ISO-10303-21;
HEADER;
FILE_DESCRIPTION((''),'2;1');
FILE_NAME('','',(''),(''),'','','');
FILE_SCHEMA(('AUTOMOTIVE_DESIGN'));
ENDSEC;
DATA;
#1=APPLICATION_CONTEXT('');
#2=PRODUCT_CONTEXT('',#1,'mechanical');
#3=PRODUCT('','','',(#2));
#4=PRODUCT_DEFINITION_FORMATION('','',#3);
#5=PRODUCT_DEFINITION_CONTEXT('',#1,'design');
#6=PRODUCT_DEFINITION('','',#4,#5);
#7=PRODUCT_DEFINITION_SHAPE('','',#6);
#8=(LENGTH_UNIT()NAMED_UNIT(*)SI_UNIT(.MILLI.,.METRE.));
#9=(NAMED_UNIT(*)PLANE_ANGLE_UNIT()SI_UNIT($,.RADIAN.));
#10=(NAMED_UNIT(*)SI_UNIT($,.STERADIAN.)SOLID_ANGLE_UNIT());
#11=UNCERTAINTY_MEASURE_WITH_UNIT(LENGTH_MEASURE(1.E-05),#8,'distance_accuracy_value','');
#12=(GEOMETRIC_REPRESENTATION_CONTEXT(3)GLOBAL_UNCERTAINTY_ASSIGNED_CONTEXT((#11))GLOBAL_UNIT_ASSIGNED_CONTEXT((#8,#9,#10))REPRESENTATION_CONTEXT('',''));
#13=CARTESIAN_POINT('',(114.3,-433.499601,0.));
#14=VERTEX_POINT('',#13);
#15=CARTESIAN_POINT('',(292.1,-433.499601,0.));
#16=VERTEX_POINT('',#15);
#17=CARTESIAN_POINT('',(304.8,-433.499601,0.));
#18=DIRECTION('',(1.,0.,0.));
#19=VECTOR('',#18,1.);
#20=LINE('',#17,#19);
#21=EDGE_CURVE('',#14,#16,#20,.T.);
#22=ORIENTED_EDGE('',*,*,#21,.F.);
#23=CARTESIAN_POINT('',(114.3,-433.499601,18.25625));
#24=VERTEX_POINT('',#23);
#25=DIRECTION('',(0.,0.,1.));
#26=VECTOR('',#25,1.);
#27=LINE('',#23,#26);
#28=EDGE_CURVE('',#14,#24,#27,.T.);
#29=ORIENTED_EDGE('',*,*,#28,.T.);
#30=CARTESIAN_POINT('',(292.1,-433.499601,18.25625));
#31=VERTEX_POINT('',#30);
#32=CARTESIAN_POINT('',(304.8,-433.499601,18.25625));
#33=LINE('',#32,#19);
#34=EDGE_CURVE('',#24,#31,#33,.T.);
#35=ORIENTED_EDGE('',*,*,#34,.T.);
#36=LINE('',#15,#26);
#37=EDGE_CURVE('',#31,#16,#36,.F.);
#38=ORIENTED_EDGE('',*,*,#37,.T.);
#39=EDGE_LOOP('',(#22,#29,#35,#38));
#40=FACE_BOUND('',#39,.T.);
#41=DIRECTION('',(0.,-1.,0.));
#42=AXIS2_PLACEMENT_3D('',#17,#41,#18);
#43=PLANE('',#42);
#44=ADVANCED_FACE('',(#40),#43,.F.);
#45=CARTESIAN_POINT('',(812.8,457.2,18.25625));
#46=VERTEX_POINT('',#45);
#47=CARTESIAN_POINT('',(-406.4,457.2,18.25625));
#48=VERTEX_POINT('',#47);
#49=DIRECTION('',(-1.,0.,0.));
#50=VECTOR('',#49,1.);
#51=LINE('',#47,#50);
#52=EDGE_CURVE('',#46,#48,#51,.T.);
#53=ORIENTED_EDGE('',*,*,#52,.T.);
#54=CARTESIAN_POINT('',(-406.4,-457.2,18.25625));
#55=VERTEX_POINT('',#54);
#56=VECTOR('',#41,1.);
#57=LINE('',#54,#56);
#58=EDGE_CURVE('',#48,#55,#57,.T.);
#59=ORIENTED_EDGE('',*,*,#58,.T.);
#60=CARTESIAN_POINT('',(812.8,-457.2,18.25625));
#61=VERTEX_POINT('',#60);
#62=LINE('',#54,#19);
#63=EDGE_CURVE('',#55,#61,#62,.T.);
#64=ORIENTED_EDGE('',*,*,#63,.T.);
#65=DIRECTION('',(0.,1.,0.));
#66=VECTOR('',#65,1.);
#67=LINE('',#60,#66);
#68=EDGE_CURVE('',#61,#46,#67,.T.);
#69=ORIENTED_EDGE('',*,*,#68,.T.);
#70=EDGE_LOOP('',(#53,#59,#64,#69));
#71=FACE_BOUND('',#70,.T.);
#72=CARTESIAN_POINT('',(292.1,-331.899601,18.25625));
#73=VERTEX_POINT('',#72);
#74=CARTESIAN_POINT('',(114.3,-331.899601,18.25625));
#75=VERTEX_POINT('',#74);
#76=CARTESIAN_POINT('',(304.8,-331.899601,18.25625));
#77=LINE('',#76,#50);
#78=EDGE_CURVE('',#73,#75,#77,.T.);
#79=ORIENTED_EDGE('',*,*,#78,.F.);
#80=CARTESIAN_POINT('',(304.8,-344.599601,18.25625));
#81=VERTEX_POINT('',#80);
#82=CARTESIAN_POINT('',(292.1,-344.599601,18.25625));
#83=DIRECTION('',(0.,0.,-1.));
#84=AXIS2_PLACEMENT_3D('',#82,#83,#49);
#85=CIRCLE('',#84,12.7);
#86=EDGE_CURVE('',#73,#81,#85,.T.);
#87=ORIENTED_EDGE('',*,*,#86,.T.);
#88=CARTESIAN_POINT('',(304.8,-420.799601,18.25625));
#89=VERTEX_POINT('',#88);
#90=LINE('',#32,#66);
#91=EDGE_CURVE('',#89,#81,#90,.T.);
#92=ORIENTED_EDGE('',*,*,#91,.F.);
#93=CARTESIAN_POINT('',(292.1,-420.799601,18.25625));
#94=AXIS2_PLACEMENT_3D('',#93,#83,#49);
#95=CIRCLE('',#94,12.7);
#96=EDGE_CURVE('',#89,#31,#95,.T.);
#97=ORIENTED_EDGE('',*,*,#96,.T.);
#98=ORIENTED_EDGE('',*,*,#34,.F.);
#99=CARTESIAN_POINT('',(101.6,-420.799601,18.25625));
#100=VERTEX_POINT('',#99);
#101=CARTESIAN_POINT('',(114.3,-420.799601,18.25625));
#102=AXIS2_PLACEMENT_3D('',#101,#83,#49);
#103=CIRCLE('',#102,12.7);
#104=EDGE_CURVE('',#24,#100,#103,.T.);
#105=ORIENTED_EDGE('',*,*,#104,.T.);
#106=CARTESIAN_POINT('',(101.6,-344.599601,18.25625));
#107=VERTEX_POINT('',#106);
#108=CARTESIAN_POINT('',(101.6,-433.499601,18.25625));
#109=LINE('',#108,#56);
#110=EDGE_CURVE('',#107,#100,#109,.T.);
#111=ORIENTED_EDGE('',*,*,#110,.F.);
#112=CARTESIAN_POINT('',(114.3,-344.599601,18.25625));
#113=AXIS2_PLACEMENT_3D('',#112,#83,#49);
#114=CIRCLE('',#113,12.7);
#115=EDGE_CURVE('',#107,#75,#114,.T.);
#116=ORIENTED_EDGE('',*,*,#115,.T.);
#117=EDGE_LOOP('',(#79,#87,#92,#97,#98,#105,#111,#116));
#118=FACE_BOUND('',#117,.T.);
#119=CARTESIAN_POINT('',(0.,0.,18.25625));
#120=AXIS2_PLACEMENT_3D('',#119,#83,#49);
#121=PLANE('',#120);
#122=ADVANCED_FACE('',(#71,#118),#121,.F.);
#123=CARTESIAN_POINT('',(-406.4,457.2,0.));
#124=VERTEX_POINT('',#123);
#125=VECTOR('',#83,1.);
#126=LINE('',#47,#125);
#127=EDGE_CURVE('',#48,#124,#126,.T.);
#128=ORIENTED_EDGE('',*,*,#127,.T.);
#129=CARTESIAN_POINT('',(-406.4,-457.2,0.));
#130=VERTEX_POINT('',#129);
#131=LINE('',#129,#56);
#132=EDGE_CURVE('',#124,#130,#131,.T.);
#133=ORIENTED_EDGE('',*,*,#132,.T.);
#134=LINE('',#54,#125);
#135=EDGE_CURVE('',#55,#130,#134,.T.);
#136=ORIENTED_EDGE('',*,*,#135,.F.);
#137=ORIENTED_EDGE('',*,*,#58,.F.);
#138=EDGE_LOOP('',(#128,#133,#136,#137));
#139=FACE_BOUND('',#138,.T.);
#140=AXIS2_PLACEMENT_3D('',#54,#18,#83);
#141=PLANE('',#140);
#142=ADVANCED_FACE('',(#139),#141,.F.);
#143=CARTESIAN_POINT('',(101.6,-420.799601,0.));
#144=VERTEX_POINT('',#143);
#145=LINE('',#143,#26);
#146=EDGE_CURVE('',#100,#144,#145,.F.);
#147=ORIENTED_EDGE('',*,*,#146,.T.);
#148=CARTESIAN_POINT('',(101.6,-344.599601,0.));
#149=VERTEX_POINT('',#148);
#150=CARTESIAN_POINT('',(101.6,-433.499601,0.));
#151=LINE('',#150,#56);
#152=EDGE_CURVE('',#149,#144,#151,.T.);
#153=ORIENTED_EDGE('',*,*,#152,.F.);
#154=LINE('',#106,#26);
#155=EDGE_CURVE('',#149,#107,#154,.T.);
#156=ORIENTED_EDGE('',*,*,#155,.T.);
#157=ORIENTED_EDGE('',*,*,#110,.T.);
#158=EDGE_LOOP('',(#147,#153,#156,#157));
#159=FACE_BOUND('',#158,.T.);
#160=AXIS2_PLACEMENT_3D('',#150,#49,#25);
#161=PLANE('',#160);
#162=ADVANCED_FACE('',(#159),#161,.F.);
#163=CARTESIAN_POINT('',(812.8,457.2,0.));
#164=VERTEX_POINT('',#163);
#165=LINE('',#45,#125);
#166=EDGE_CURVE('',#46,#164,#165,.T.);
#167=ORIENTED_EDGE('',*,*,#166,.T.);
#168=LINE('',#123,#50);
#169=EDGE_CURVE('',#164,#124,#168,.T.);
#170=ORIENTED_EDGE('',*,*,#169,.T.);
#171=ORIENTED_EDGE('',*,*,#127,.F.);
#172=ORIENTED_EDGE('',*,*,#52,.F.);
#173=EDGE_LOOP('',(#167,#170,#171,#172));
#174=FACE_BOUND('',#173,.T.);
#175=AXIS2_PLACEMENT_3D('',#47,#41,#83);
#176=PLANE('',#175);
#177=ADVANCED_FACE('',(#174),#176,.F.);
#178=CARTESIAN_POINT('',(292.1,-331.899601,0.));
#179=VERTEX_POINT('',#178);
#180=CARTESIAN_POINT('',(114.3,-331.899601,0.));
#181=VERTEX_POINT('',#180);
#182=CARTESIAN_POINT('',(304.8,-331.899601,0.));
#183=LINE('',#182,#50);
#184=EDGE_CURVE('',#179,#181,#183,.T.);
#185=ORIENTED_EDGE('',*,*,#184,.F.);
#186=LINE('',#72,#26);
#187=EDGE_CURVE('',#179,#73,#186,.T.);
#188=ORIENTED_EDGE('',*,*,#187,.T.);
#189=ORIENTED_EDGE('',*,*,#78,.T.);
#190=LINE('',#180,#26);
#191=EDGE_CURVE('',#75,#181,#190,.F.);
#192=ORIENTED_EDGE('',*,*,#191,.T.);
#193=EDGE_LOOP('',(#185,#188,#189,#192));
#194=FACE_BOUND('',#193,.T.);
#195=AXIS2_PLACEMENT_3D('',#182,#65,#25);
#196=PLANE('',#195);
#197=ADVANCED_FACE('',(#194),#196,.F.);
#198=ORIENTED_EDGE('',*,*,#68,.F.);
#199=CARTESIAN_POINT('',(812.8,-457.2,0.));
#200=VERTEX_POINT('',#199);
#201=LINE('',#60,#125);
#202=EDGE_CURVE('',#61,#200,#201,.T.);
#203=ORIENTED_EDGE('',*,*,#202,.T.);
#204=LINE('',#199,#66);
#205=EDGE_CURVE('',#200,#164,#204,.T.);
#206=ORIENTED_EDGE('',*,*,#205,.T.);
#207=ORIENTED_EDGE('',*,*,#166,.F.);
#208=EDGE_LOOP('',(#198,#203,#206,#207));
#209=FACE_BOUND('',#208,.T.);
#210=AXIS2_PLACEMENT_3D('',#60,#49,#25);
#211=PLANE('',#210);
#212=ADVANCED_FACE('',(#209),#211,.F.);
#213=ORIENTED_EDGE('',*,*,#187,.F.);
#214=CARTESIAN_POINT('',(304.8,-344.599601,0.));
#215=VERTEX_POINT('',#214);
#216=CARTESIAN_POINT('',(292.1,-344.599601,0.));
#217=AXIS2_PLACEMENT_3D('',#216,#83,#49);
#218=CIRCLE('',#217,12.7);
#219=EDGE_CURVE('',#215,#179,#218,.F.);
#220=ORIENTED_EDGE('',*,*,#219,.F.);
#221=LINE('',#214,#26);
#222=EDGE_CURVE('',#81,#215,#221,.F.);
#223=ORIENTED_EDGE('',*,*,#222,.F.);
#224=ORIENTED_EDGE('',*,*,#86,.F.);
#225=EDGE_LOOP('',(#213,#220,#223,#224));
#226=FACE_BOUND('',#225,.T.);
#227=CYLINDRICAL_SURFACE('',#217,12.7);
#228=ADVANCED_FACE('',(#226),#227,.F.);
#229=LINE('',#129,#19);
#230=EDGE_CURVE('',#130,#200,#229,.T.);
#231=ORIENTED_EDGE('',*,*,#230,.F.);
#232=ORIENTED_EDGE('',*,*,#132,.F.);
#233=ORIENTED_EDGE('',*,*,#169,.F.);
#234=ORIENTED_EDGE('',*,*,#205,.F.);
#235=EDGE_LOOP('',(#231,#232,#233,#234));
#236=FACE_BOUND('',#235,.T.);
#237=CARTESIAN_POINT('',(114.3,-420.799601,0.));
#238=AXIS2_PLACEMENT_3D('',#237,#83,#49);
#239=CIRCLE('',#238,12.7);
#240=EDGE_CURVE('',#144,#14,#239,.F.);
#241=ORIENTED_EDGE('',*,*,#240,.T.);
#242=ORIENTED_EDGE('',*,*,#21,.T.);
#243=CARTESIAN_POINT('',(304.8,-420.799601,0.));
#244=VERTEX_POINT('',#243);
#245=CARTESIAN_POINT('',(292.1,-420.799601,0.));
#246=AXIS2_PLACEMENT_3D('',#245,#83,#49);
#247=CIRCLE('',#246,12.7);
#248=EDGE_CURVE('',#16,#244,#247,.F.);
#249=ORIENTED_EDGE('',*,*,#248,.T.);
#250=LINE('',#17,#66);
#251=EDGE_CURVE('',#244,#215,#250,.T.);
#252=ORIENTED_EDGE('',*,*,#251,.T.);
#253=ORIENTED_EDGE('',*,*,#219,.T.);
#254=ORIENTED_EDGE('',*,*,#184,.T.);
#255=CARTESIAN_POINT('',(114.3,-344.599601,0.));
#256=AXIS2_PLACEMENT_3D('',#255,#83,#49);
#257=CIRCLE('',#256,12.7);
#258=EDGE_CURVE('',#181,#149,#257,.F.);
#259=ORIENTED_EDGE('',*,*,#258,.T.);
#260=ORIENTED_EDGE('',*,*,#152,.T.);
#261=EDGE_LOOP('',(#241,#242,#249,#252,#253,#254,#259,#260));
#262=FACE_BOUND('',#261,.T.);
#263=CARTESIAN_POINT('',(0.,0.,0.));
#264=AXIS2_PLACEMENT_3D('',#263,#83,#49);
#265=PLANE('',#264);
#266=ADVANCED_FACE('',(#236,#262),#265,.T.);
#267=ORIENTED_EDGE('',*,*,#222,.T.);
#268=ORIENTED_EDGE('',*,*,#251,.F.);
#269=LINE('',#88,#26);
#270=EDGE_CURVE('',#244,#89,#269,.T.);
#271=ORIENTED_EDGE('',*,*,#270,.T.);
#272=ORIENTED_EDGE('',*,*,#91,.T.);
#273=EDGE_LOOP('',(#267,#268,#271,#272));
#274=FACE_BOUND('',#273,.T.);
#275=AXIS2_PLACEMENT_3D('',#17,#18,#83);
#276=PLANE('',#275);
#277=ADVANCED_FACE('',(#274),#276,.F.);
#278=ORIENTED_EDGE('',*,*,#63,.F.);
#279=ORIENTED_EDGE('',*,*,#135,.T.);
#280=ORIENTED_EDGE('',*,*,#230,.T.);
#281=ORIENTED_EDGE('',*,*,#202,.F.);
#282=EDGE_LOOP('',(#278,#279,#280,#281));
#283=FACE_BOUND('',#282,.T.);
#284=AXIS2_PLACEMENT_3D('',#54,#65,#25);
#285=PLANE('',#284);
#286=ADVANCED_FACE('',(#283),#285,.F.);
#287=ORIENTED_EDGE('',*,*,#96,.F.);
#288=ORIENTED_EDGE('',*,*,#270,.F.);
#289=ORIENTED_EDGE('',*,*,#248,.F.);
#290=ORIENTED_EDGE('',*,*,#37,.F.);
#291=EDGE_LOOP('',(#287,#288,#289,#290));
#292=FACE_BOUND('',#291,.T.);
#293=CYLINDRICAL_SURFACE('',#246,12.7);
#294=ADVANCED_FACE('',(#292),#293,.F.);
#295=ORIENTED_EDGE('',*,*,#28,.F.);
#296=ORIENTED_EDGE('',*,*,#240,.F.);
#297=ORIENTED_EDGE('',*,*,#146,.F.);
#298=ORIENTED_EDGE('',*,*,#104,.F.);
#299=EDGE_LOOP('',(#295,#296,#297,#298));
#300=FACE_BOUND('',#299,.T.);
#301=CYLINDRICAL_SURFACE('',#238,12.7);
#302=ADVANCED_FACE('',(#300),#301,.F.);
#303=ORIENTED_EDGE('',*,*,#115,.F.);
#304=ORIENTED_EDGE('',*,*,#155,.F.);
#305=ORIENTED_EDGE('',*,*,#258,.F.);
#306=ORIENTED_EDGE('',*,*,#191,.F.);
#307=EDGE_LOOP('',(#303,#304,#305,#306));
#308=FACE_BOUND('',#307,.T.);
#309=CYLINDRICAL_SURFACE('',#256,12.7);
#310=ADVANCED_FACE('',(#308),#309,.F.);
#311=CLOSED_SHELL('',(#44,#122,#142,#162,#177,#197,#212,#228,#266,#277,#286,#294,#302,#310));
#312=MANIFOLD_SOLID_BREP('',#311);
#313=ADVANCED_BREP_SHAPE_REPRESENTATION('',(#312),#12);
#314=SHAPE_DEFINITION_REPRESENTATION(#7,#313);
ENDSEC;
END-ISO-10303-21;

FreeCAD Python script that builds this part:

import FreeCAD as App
import Part
import Sketcher
from FreeCAD import Vector
Q = App.Units.Quantity


def edges_at(feature, points):
    """Names of the edges that pass closest to the given points."""
    edges = feature.Shape.Edges
    near = lambda p: min(range(len(edges)), key=lambda i: edges[i].distToShape(Part.Vertex(*p))[0])
    return sorted({f"Edge{near(p) + 1}" for p in points})


def add_polygon(sketch, points):
    """Adds a closed chain of lines whose ends are joined by coincident constraints."""
    first, n = sketch.GeometryCount, len(points)
    for a, b in zip(points, points[1:] + points[:1]):
        sketch.addGeometry(Part.LineSegment(App.Vector(*a, 0), App.Vector(*b, 0)), False)
    for i in range(n):
        sketch.addConstraint(Sketcher.Constraint("Coincident", first + i, 2, first + (i + 1) % n, 1))

doc = App.newDocument("Part")
body = doc.addObject("PartDesign::Body", "Body")

# Sketch on XY plane
sketch1 = body.newObject("Sketcher::SketchObject", "Sketch")
sketch1.AttachmentSupport = (doc.getObject("XY_Plane"), [""])
sketch1.MapMode = "FlatFace"
add_polygon(sketch1, [(-406, 457), (-406, -457), (813, -457), (813, 457)])  # lines 0-3
sketch1.addConstraint([
    Sketcher.Constraint("Vertical", 0),
    Sketcher.Constraint("Horizontal", 1),
    Sketcher.Constraint("Vertical", 2),
    Sketcher.Constraint("Horizontal", 3),
    Sketcher.Constraint("DistanceX", 1, 1, 1, 2, Q("48 in")),
    Sketcher.Constraint("DistanceY", 0, 2, 0, 1, Q("36 in")),
    Sketcher.Constraint("DistanceX", 0, 2, -1, 1, Q("16 in")),
    Sketcher.Constraint("DistanceY", 0, 2, -1, 1, Q("18 in")),
])
pad1 = body.newObject("PartDesign::Pad", "Pad")
pad1.Profile = sketch1
pad1.Length = Q("0.71875 in")

# Sketch on XY plane
sketch2 = body.newObject("Sketcher::SketchObject", "Sketch001")
sketch2.AttachmentSupport = (doc.getObject("XY_Plane"), [""])
sketch2.MapMode = "FlatFace"
sketch2.AttachmentOffset = App.Placement(Vector(0, 0, 0.71875 * 25.4), App.Rotation())
add_polygon(sketch2, [(102, -332), (102, -433), (305, -433), (305, -332)])  # lines 0-3
sketch2.addConstraint([
    Sketcher.Constraint("Vertical", 0),
    Sketcher.Constraint("Horizontal", 1),
    Sketcher.Constraint("Vertical", 2),
    Sketcher.Constraint("Horizontal", 3),
    Sketcher.Constraint("DistanceX", 1, 1, 1, 2, Q("8 in")),
    Sketcher.Constraint("DistanceY", 0, 2, 0, 1, Q("4 in")),
    Sketcher.Constraint("DistanceX", -1, 1, 0, 2, Q("4 in")),
    Sketcher.Constraint("DistanceY", 0, 2, -1, 1, 433.499601),
])
pocket1 = body.newObject("PartDesign::Pocket", "Pocket")
pocket1.Profile = sketch2
pocket1.Type = "ThroughAll"
doc.recompute()

fillet = body.newObject("PartDesign::Fillet", "Fillet")
fillet.Base = (pocket1, edges_at(pocket1, [
    (101.6, -433.5, 9.128),
    (101.6, -331.9, 9.128),
    (304.8, -331.9, 9.128),
    (304.8, -433.5, 9.128),
]))
fillet.Radius = Q("0.5 in")

doc.recompute()
